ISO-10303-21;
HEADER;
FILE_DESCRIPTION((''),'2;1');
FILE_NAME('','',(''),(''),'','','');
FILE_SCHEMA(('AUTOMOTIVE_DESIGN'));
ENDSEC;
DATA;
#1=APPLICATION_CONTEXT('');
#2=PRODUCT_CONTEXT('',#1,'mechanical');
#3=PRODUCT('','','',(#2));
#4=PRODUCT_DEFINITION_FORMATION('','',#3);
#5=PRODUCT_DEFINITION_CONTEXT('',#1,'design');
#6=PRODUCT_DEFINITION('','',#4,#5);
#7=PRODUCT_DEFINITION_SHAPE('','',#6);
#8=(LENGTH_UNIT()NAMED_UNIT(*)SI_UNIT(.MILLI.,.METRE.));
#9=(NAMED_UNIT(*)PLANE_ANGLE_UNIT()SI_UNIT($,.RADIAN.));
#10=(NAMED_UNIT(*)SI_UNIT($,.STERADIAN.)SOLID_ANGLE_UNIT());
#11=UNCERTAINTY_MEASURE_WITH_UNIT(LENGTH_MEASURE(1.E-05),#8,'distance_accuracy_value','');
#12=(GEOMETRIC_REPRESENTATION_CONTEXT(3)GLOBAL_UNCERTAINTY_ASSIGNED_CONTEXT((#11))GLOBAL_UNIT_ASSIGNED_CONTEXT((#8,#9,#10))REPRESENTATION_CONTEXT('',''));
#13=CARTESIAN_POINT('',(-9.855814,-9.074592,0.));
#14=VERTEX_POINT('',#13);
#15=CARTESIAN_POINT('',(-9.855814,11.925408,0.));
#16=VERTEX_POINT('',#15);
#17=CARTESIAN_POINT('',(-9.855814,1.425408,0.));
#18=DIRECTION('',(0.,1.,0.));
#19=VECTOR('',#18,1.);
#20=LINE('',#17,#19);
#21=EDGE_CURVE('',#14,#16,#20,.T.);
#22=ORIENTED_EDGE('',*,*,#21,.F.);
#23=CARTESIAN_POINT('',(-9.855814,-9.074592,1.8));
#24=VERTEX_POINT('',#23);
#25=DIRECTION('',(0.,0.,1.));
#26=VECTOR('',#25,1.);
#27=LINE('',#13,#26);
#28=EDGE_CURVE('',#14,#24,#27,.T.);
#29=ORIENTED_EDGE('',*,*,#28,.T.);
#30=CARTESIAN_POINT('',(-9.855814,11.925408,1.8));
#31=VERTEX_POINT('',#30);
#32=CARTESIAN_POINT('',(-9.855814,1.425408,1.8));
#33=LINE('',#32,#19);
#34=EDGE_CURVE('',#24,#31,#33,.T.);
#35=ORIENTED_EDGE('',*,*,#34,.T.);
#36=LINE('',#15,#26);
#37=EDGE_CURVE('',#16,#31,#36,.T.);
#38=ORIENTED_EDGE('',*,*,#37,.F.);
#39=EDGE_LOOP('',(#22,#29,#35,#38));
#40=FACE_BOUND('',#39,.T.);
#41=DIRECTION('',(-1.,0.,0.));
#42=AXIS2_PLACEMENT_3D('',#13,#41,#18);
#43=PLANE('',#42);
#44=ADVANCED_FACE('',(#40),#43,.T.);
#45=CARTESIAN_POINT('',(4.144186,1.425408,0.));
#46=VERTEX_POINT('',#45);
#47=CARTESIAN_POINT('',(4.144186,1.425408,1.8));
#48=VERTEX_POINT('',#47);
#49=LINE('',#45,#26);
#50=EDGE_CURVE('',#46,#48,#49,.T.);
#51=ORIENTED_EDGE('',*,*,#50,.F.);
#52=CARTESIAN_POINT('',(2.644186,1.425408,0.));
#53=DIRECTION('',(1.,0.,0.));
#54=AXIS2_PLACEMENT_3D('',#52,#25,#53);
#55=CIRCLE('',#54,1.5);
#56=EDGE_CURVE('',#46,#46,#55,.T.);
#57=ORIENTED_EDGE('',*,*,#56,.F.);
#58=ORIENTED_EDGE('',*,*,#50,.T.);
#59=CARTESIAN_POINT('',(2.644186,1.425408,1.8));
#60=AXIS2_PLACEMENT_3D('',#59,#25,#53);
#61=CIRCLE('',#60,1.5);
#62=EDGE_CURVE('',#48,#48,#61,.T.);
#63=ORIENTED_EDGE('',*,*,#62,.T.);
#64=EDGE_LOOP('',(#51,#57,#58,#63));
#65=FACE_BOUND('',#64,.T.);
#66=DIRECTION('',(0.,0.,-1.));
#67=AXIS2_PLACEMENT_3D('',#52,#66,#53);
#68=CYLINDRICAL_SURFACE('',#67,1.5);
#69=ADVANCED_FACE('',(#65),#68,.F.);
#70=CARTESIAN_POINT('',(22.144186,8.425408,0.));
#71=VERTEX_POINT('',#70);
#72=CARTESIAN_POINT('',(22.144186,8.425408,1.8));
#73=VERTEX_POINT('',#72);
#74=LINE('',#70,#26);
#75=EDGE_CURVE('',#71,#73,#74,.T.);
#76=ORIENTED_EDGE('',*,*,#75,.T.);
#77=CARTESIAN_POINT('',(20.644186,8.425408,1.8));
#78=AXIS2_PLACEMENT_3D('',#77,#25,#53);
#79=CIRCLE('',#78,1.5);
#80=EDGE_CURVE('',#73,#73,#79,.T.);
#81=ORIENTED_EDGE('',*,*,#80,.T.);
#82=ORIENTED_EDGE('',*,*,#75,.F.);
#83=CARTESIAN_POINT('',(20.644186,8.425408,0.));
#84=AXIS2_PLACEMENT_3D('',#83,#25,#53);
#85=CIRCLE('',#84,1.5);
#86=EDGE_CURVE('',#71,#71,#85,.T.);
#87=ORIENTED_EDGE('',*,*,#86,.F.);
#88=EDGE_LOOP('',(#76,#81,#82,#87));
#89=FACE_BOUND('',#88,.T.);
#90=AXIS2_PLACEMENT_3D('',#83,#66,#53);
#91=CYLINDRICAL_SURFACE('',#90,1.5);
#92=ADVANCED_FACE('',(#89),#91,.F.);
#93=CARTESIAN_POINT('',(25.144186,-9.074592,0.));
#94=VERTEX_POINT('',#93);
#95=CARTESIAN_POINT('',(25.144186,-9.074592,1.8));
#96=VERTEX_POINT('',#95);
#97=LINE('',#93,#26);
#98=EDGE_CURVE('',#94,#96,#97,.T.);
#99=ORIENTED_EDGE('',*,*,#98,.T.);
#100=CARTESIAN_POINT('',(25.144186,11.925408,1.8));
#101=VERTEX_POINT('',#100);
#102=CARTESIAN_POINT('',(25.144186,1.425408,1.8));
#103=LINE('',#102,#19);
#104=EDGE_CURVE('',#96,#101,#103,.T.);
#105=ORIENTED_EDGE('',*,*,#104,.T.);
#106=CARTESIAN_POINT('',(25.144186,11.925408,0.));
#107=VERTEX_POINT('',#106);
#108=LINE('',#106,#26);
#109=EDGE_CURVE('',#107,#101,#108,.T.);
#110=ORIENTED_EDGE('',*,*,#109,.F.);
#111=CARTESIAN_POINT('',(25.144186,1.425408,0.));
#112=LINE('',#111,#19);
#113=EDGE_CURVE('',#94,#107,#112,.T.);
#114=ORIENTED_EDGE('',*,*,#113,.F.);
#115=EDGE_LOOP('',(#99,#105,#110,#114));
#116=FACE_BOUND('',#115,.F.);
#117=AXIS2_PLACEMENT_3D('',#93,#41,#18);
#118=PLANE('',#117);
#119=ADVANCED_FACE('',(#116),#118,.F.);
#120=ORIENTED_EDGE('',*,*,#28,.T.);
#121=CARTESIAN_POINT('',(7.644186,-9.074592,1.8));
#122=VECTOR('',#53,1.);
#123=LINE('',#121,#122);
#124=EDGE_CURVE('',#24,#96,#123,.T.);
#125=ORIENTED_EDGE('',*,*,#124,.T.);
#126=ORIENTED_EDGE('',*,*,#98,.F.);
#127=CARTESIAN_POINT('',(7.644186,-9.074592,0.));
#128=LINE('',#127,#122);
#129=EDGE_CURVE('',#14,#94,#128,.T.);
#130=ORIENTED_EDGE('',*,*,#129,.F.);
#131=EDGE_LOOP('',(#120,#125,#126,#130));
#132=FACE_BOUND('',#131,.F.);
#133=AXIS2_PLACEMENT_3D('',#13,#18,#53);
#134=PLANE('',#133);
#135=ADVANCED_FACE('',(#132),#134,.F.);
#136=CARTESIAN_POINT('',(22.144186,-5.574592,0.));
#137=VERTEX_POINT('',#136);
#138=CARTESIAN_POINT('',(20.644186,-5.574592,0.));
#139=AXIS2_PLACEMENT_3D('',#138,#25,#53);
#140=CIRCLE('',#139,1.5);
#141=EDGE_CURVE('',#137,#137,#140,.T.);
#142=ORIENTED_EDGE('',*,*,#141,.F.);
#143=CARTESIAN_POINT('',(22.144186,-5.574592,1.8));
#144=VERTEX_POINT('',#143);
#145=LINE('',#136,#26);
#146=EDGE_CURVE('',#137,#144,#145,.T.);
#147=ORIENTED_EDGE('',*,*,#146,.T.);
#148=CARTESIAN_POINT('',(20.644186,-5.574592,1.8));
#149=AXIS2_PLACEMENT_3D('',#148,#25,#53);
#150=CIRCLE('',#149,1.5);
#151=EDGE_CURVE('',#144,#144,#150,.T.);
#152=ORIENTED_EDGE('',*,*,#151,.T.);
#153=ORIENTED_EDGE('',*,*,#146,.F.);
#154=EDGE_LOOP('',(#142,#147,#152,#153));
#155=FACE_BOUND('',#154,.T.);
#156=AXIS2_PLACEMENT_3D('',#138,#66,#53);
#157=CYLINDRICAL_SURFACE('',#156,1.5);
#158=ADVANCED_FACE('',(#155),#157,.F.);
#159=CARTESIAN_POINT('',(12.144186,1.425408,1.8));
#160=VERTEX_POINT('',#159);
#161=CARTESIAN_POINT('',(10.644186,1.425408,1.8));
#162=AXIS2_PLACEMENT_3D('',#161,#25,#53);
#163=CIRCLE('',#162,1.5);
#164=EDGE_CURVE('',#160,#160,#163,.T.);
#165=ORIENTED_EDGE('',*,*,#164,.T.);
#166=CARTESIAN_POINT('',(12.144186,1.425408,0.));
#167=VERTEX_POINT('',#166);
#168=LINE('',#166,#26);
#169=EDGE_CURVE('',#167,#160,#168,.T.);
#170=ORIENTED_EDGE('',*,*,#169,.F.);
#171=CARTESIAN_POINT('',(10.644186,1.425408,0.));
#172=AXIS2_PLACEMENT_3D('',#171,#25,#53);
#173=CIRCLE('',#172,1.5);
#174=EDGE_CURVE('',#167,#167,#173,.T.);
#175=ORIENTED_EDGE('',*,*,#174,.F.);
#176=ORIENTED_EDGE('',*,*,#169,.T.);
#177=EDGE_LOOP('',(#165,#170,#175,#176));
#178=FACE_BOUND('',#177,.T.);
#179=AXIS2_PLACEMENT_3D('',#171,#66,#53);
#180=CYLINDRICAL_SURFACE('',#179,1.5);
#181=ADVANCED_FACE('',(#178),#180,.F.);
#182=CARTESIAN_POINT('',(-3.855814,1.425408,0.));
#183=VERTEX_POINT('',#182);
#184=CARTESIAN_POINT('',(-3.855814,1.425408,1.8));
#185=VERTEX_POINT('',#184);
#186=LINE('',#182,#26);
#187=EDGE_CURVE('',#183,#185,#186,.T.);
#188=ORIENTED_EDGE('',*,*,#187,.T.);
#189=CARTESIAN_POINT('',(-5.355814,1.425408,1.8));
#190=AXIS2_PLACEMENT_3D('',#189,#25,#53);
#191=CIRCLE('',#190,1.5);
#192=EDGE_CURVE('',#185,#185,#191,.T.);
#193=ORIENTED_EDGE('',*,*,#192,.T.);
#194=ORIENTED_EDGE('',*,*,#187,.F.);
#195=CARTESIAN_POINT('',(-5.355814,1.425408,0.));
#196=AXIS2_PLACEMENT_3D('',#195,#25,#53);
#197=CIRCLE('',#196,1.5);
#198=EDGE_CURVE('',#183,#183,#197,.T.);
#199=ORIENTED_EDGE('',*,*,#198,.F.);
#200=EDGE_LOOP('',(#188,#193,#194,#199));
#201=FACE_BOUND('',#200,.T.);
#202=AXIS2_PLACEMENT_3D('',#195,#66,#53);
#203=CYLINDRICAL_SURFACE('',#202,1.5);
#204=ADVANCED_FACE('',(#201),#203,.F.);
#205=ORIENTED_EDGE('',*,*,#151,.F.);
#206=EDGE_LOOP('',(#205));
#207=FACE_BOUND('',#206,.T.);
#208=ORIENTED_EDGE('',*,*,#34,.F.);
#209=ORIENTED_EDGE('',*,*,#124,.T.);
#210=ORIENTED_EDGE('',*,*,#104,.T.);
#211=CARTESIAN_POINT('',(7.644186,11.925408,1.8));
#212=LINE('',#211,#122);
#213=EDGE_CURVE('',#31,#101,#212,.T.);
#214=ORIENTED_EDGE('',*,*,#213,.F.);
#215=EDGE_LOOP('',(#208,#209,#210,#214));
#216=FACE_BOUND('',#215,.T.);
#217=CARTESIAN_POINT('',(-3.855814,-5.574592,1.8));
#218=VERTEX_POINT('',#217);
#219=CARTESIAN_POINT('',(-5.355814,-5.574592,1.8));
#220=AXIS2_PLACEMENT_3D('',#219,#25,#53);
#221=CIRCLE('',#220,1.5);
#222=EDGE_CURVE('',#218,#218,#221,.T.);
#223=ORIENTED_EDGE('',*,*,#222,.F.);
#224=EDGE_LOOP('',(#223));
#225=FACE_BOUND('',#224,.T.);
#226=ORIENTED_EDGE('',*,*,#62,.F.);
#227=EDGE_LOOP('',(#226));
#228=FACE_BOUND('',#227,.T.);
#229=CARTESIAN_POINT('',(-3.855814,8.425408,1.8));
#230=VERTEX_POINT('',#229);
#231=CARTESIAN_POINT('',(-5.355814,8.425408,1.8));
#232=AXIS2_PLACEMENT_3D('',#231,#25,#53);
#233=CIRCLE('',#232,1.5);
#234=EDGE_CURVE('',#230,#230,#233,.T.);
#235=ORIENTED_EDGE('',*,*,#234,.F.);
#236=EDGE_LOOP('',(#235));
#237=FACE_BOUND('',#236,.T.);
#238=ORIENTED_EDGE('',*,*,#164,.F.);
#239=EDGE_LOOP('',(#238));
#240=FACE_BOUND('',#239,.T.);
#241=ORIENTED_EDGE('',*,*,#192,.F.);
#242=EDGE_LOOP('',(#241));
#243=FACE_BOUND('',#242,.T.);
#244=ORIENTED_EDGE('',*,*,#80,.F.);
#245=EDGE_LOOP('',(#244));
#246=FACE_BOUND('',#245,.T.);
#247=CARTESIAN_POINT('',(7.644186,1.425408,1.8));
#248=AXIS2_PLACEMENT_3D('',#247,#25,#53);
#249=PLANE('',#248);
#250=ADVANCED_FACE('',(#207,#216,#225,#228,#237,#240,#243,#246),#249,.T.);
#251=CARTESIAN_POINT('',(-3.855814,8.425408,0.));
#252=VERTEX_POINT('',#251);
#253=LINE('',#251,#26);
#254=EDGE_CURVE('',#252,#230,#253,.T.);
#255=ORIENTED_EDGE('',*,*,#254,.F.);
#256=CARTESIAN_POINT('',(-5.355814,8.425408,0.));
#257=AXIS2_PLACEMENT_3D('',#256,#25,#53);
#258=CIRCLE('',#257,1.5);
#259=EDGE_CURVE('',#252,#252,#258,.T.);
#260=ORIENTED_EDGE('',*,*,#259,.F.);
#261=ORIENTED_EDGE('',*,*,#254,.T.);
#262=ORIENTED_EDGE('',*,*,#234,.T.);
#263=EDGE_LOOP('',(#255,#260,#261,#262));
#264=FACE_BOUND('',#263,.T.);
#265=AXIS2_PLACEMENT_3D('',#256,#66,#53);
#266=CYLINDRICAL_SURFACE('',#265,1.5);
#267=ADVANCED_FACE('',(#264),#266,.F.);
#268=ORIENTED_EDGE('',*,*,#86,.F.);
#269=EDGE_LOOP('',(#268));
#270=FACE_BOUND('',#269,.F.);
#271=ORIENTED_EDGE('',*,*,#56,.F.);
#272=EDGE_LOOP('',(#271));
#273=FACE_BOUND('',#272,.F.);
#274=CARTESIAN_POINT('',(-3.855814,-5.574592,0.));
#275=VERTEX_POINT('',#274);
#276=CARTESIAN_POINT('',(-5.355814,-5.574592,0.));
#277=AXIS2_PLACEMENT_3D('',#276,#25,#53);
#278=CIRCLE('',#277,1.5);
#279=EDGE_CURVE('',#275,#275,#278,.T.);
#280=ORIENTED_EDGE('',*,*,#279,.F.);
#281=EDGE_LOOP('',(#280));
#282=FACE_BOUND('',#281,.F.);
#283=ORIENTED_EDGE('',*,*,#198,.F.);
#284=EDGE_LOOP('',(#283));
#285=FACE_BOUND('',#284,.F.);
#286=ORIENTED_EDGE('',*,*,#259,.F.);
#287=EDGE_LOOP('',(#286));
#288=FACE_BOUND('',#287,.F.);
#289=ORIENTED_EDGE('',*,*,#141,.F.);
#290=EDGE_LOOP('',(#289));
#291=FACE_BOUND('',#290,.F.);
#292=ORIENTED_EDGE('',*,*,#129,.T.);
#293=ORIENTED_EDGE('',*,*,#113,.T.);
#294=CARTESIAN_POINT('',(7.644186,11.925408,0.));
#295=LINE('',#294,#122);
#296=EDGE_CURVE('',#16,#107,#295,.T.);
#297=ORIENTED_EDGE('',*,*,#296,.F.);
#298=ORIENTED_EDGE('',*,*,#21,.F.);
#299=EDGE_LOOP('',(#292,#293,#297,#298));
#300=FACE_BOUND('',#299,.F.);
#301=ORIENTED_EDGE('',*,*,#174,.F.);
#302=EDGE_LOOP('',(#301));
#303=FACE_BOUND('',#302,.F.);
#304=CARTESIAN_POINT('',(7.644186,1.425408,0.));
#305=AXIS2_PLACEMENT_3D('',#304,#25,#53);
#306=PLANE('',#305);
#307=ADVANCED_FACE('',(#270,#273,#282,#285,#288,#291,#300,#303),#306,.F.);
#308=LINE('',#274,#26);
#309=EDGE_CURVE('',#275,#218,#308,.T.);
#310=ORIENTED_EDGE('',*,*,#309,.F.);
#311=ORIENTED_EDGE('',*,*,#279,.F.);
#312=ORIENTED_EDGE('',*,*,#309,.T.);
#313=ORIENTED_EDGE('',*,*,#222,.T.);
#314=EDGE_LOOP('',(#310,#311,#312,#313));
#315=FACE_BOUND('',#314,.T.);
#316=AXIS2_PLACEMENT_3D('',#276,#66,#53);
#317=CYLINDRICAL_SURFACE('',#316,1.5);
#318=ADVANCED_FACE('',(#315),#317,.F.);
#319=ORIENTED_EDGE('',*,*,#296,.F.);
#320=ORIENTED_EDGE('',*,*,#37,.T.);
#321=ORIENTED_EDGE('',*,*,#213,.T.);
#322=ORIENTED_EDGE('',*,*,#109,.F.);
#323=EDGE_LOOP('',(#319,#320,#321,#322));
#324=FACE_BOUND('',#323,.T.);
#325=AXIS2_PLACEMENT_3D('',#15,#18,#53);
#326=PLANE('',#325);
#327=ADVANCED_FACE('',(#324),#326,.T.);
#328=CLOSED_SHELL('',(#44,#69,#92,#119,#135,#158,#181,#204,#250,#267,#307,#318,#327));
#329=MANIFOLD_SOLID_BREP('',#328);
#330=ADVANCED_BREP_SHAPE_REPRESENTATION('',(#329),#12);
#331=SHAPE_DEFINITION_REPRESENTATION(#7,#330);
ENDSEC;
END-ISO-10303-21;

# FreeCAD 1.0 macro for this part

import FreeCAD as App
import Part
import Sketcher

V = App.Vector
Q = App.Units.Quantity


def add_polygon(sketch, points):
    """Adds a closed chain of lines whose ends are joined by coincident constraints."""
    first, n = sketch.GeometryCount, len(points)
    for a, b in zip(points, points[1:] + points[:1]):
        sketch.addGeometry(Part.LineSegment(App.Vector(*a, 0), App.Vector(*b, 0)), False)
    for i in range(n):
        sketch.addConstraint(Sketcher.Constraint("Coincident", first + i, 2, first + (i + 1) % n, 1))

doc = App.newDocument("Part")
body = doc.addObject("PartDesign::Body", "Body")

# Sketch on XY plane
sketch1 = body.newObject("Sketcher::SketchObject", "Sketch")
sketch1.AttachmentSupport = (doc.getObject("XY_Plane"), [""])
sketch1.MapMode = "FlatFace"
add_polygon(sketch1, [(-9.9, 11.9), (-9.9, -9.1), (25.1, -9.1), (25.1, 11.9)])  # lines 0-3
sketch1.addGeometry(Part.Circle(V(-5.4, -5.6, 0), V(0, 0, 1), 1.5), False)  # 4
sketch1.addGeometry(Part.Circle(V(20.6, -5.6, 0), V(0, 0, 1), 1.5), False)  # 5
sketch1.addGeometry(Part.Circle(V(-5.4, 1.4, 0), V(0, 0, 1), 1.5), False)  # 6
sketch1.addGeometry(Part.Circle(V(2.6, 1.4, 0), V(0, 0, 1), 1.5), False)  # 7
sketch1.addGeometry(Part.Circle(V(-5.4, 8.4, 0), V(0, 0, 1), 1.5), False)  # 8
sketch1.addGeometry(Part.Circle(V(10.6, 1.4, 0), V(0, 0, 1), 1.5), False)  # 9
sketch1.addGeometry(Part.Circle(V(20.6, 8.4, 0), V(0, 0, 1), 1.5), False)  # 10
sketch1.addConstraint([
    Sketcher.Constraint("Vertical", 0),
    Sketcher.Constraint("Horizontal", 1),
    Sketcher.Constraint("Vertical", 2),
    Sketcher.Constraint("Horizontal", 3),
    Sketcher.Constraint("Equal", 4, 5),
    Sketcher.Constraint("Equal", 5, 6),
    Sketcher.Constraint("Equal", 6, 7),
    Sketcher.Constraint("Equal", 7, 8),
    Sketcher.Constraint("Equal", 8, 9),
    Sketcher.Constraint("Equal", 9, 10),
    Sketcher.Constraint("Horizontal", 4, 3, 5, 3),
    Sketcher.Constraint("Horizontal", 6, 3, 7, 3),
    Sketcher.Constraint("Horizontal", 7, 3, 9, 3),
    Sketcher.Constraint("Horizontal", 8, 3, 10, 3),
    Sketcher.Constraint("Vertical", 4, 3, 6, 3),
    Sketcher.Constraint("Vertical", 6, 3, 8, 3),
    Sketcher.Constraint("Vertical", 5, 3, 10, 3),
    Sketcher.Constraint("Diameter", 4, Q("3 mm")),
    Sketcher.Constraint("DistanceX", 1, 1, 1, 2, Q("35 mm")),
    Sketcher.Constraint("DistanceY", 0, 2, 0, 1, Q("21 mm")),
    Sketcher.Constraint("DistanceX", 4, 3, 5, 3, Q("26 mm")),
    Sketcher.Constraint("DistanceY", 4, 3, 6, 3, Q("7 mm")),
    Sketcher.Constraint("DistanceX", 6, 3, 7, 3, Q("8 mm")),
    Sketcher.Constraint("DistanceY", 6, 3, 8, 3, Q("7 mm")),
    Sketcher.Constraint("DistanceX", 7, 3, 9, 3, Q("8 mm")),
    Sketcher.Constraint("DistanceX", 0, 2, 4, 3, Q("4.5 mm")),
    Sketcher.Constraint("DistanceY", 0, 2, 4, 3, Q("3.5 mm")),
    Sketcher.Constraint("DistanceX", 4, 3, -1, 1, Q("5.355814 mm")),
    Sketcher.Constraint("DistanceY", 4, 3, -1, 1, Q("5.574592 mm")),
])
pad1 = body.newObject("PartDesign::Pad", "Pad")
pad1.Profile = sketch1
pad1.Length = 1.8

doc.recompute()
